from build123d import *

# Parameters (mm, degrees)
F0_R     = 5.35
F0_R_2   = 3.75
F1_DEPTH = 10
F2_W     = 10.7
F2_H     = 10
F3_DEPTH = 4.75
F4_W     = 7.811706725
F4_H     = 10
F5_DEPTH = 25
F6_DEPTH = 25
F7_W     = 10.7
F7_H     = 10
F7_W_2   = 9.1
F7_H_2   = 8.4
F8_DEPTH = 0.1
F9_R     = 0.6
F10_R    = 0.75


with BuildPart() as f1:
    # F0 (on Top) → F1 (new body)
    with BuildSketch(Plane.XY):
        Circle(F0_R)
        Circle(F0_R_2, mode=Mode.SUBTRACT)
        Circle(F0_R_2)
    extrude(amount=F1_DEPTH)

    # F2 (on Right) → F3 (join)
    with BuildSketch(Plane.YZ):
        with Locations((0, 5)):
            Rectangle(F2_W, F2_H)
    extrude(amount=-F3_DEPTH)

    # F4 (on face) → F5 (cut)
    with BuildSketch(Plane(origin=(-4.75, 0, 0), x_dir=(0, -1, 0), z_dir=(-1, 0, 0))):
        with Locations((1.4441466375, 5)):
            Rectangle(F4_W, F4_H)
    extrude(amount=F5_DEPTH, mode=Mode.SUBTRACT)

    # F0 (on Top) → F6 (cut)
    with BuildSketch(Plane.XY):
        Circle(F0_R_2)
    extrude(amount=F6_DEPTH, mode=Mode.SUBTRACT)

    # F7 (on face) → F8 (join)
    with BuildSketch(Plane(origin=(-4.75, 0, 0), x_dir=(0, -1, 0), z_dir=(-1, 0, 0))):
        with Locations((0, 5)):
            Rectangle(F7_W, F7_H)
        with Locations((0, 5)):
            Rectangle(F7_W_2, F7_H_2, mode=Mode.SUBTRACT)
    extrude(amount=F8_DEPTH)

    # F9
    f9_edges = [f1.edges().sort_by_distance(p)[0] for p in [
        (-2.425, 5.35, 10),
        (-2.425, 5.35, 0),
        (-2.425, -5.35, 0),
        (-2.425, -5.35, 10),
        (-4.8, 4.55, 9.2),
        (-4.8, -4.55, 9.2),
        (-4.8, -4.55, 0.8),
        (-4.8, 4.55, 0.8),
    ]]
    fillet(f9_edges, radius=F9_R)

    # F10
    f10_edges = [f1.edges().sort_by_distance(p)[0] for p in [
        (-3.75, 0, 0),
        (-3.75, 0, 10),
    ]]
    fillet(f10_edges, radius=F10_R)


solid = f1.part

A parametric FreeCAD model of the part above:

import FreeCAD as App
import Part
import Sketcher
from FreeCAD import Vector
Q = App.Units.Quantity


def edges_at(feature, points):
    """Names of the edges that pass closest to the given points."""
    edges = feature.Shape.Edges
    near = lambda p: min(range(len(edges)), key=lambda i: edges[i].distToShape(Part.Vertex(*p))[0])
    return sorted({f"Edge{near(p) + 1}" for p in points})

doc = App.newDocument("Part")
body = doc.addObject("PartDesign::Body", "Body")

# Sketch on XY plane
sketch1 = body.newObject("Sketcher::SketchObject", "Sketch")
sketch1.AttachmentSupport = (doc.getObject("XY_Plane"), [""])
sketch1.MapMode = "FlatFace"
sketch1.addGeometry(Part.Circle(Vector(0, 0, 0), Vector(0, 0, 1), 5), False)
sketch1.addConstraint([
    Sketcher.Constraint("Coincident", 0, 3, -1, 1),
    Sketcher.Constraint("Diameter", 0, Q("10.7 mm")),
])
pad1 = body.newObject("PartDesign::Pad", "Pad")
pad1.Profile = sketch1
pad1.Length = 10

# Sketch on YZ plane
sketch2 = body.newObject("Sketcher::SketchObject", "Sketch001")
sketch2.AttachmentSupport = (doc.getObject("YZ_Plane"), [""])
sketch2.MapMode = "FlatFace"
sketch2.addGeometry([
    Part.LineSegment(Vector(-5, 10, 0), Vector(-5, 0, 0)),
    Part.LineSegment(Vector(-5, 0, 0), Vector(5, 0, 0)),
    Part.LineSegment(Vector(5, 0, 0), Vector(5, 10, 0)),
    Part.LineSegment(Vector(5, 10, 0), Vector(-5, 10, 0)),
], False)
sketch2.addConstraint([
    Sketcher.Constraint("Coincident", 0, 2, 1, 1),
    Sketcher.Constraint("Coincident", 1, 2, 2, 1),
    Sketcher.Constraint("Coincident", 2, 2, 3, 1),
    Sketcher.Constraint("Coincident", 3, 2, 0, 1),
    Sketcher.Constraint("Vertical", 0),
    Sketcher.Constraint("Horizontal", 1),
    Sketcher.Constraint("Vertical", 2),
    Sketcher.Constraint("Horizontal", 3),
    Sketcher.Constraint("Symmetric", 0, 2, 1, 2, -1, 1),
    Sketcher.Constraint("DistanceY", 0, 2, 0, 1, Q("10 mm")),
    Sketcher.Constraint("DistanceX", 1, 1, 1, 2, Q("10.7 mm")),
])
pad2 = body.newObject("PartDesign::Pad", "Pad001")
pad2.Profile = sketch2
pad2.Length = 4.75
pad2.Reversed = True

# Sketch on YZ plane
sketch3 = body.newObject("Sketcher::SketchObject", "Sketch002")
sketch3.AttachmentSupport = (doc.getObject("YZ_Plane"), [""])
sketch3.MapMode = "FlatFace"
sketch3.AttachmentOffset = App.Placement(Vector(0, 0, -4.75), App.Rotation())
sketch3.addGeometry([
    Part.LineSegment(Vector(2, 10, 0), Vector(2, 0, 0)),
    Part.LineSegment(Vector(2, 0, 0), Vector(-5, 0, 0)),
    Part.LineSegment(Vector(-5, 0, 0), Vector(-5, 10, 0)),
    Part.LineSegment(Vector(-5, 10, 0), Vector(2, 10, 0)),
], False)
sketch3.addConstraint([
    Sketcher.Constraint("Coincident", 0, 2, 1, 1),
    Sketcher.Constraint("Coincident", 1, 2, 2, 1),
    Sketcher.Constraint("Coincident", 2, 2, 3, 1),
    Sketcher.Constraint("Coincident", 3, 2, 0, 1),
    Sketcher.Constraint("Vertical", 0),
    Sketcher.Constraint("Horizontal", 1),
    Sketcher.Constraint("Vertical", 2),
    Sketcher.Constraint("Horizontal", 3),
    Sketcher.Constraint("PointOnObject", 0, 2, -1),
    Sketcher.Constraint("DistanceY", 0, 2, 0, 1, Q("10 mm")),
    Sketcher.Constraint("DistanceX", 1, 2, -1, 1, Q("5.35 mm")),
    Sketcher.Constraint("DistanceX", 1, 2, 1, 1, Q("7.811707 mm")),
])
pocket1 = body.newObject("PartDesign::Pocket", "Pocket")
pocket1.Profile = sketch3
pocket1.Length = 25

# Sketch on XY plane
sketch4 = body.newObject("Sketcher::SketchObject", "Sketch003")
sketch4.AttachmentSupport = (doc.getObject("XY_Plane"), [""])
sketch4.MapMode = "FlatFace"
sketch4.addGeometry(Part.Circle(Vector(0, 0, 0), Vector(0, 0, 1), 3.8), False)
sketch4.addConstraint([
    Sketcher.Constraint("Coincident", 0, 3, -1, 1),
    Sketcher.Constraint("Diameter", 0, Q("7.5 mm")),
])
pocket2 = body.newObject("PartDesign::Pocket", "Pocket001")
pocket2.Profile = sketch4
pocket2.Length = 25
pocket2.Reversed = True

# Sketch on YZ plane
sketch5 = body.newObject("Sketcher::SketchObject", "Sketch004")
sketch5.AttachmentSupport = (doc.getObject("YZ_Plane"), [""])
sketch5.MapMode = "FlatFace"
sketch5.AttachmentOffset = App.Placement(Vector(0, 0, -4.75), App.Rotation())
sketch5.addGeometry([
    Part.LineSegment(Vector(5, 10, 0), Vector(5, 0, 0)),  # 0
    Part.LineSegment(Vector(5, 0, 0), Vector(-5, 0, 0)),  # 1
    Part.LineSegment(Vector(-5, 0, 0), Vector(-5, 10, 0)),  # 2
    Part.LineSegment(Vector(-5, 10, 0), Vector(5, 10, 0)),  # 3
    Part.LineSegment(Vector(-5, 1, 0), Vector(5, 1, 0)),  # 4
    Part.LineSegment(Vector(5, 1, 0), Vector(5, 9, 0)),  # 5
    Part.LineSegment(Vector(5, 9, 0), Vector(-5, 9, 0)),  # 6
    Part.LineSegment(Vector(-5, 9, 0), Vector(-5, 1, 0)),  # 7
], False)
sketch5.addConstraint([
    Sketcher.Constraint("Coincident", 0, 2, 1, 1),
    Sketcher.Constraint("Coincident", 1, 2, 2, 1),
    Sketcher.Constraint("Coincident", 2, 2, 3, 1),
    Sketcher.Constraint("Coincident", 3, 2, 0, 1),
    Sketcher.Constraint("Coincident", 4, 2, 5, 1),
    Sketcher.Constraint("Coincident", 5, 2, 6, 1),
    Sketcher.Constraint("Coincident", 6, 2, 7, 1),
    Sketcher.Constraint("Coincident", 7, 2, 4, 1),
    Sketcher.Constraint("Vertical", 0),
    Sketcher.Constraint("Horizontal", 1),
    Sketcher.Constraint("Vertical", 2),
    Sketcher.Constraint("Horizontal", 3),
    Sketcher.Constraint("Horizontal", 4),
    Sketcher.Constraint("Vertical", 5),
    Sketcher.Constraint("Horizontal", 6),
    Sketcher.Constraint("Vertical", 7),
    Sketcher.Constraint("Symmetric", 0, 2, 1, 2, -1, 1),
    Sketcher.Constraint("DistanceY", 0, 2, 0, 1, Q("10 mm")),
    Sketcher.Constraint("DistanceX", 1, 2, 1, 1, Q("10.7 mm")),
    Sketcher.Constraint("DistanceX", 4, 1, 4, 2, Q("9.1 mm")),
    Sketcher.Constraint("DistanceY", 5, 1, 5, 2, Q("8.4 mm")),
    Sketcher.Constraint("DistanceY", -1, 1, 4, 2, Q("0.8 mm")),
    Sketcher.Constraint("DistanceX", 4, 2, 0, 2, Q("0.8 mm")),
])
pad3 = body.newObject("PartDesign::Pad", "Pad002")
pad3.Profile = sketch5
pad3.Length = 0.1
pad3.Reversed = True
doc.recompute()

fillet = body.newObject("PartDesign::Fillet", "Fillet")
fillet.Base = (pad3, edges_at(pad3, [
    (-2.425, 5.35, 10),
    (-2.425, 5.35, 0),
    (-2.425, -5.35, 0),
    (-2.425, -5.35, 10),
    (-4.8, 4.55, 9.2),
    (-4.8, -4.55, 9.2),
    (-4.8, -4.55, 0.8),
    (-4.8, 4.55, 0.8),
]))
fillet.Radius = 0.6
doc.recompute()

fillet2 = body.newObject("PartDesign::Fillet", "Fillet001")
fillet2.Base = (fillet, edges_at(fillet, [(-3.75, 0, 0), (-3.75, 0, 10)]))
fillet2.Radius = 0.75

doc.recompute()
